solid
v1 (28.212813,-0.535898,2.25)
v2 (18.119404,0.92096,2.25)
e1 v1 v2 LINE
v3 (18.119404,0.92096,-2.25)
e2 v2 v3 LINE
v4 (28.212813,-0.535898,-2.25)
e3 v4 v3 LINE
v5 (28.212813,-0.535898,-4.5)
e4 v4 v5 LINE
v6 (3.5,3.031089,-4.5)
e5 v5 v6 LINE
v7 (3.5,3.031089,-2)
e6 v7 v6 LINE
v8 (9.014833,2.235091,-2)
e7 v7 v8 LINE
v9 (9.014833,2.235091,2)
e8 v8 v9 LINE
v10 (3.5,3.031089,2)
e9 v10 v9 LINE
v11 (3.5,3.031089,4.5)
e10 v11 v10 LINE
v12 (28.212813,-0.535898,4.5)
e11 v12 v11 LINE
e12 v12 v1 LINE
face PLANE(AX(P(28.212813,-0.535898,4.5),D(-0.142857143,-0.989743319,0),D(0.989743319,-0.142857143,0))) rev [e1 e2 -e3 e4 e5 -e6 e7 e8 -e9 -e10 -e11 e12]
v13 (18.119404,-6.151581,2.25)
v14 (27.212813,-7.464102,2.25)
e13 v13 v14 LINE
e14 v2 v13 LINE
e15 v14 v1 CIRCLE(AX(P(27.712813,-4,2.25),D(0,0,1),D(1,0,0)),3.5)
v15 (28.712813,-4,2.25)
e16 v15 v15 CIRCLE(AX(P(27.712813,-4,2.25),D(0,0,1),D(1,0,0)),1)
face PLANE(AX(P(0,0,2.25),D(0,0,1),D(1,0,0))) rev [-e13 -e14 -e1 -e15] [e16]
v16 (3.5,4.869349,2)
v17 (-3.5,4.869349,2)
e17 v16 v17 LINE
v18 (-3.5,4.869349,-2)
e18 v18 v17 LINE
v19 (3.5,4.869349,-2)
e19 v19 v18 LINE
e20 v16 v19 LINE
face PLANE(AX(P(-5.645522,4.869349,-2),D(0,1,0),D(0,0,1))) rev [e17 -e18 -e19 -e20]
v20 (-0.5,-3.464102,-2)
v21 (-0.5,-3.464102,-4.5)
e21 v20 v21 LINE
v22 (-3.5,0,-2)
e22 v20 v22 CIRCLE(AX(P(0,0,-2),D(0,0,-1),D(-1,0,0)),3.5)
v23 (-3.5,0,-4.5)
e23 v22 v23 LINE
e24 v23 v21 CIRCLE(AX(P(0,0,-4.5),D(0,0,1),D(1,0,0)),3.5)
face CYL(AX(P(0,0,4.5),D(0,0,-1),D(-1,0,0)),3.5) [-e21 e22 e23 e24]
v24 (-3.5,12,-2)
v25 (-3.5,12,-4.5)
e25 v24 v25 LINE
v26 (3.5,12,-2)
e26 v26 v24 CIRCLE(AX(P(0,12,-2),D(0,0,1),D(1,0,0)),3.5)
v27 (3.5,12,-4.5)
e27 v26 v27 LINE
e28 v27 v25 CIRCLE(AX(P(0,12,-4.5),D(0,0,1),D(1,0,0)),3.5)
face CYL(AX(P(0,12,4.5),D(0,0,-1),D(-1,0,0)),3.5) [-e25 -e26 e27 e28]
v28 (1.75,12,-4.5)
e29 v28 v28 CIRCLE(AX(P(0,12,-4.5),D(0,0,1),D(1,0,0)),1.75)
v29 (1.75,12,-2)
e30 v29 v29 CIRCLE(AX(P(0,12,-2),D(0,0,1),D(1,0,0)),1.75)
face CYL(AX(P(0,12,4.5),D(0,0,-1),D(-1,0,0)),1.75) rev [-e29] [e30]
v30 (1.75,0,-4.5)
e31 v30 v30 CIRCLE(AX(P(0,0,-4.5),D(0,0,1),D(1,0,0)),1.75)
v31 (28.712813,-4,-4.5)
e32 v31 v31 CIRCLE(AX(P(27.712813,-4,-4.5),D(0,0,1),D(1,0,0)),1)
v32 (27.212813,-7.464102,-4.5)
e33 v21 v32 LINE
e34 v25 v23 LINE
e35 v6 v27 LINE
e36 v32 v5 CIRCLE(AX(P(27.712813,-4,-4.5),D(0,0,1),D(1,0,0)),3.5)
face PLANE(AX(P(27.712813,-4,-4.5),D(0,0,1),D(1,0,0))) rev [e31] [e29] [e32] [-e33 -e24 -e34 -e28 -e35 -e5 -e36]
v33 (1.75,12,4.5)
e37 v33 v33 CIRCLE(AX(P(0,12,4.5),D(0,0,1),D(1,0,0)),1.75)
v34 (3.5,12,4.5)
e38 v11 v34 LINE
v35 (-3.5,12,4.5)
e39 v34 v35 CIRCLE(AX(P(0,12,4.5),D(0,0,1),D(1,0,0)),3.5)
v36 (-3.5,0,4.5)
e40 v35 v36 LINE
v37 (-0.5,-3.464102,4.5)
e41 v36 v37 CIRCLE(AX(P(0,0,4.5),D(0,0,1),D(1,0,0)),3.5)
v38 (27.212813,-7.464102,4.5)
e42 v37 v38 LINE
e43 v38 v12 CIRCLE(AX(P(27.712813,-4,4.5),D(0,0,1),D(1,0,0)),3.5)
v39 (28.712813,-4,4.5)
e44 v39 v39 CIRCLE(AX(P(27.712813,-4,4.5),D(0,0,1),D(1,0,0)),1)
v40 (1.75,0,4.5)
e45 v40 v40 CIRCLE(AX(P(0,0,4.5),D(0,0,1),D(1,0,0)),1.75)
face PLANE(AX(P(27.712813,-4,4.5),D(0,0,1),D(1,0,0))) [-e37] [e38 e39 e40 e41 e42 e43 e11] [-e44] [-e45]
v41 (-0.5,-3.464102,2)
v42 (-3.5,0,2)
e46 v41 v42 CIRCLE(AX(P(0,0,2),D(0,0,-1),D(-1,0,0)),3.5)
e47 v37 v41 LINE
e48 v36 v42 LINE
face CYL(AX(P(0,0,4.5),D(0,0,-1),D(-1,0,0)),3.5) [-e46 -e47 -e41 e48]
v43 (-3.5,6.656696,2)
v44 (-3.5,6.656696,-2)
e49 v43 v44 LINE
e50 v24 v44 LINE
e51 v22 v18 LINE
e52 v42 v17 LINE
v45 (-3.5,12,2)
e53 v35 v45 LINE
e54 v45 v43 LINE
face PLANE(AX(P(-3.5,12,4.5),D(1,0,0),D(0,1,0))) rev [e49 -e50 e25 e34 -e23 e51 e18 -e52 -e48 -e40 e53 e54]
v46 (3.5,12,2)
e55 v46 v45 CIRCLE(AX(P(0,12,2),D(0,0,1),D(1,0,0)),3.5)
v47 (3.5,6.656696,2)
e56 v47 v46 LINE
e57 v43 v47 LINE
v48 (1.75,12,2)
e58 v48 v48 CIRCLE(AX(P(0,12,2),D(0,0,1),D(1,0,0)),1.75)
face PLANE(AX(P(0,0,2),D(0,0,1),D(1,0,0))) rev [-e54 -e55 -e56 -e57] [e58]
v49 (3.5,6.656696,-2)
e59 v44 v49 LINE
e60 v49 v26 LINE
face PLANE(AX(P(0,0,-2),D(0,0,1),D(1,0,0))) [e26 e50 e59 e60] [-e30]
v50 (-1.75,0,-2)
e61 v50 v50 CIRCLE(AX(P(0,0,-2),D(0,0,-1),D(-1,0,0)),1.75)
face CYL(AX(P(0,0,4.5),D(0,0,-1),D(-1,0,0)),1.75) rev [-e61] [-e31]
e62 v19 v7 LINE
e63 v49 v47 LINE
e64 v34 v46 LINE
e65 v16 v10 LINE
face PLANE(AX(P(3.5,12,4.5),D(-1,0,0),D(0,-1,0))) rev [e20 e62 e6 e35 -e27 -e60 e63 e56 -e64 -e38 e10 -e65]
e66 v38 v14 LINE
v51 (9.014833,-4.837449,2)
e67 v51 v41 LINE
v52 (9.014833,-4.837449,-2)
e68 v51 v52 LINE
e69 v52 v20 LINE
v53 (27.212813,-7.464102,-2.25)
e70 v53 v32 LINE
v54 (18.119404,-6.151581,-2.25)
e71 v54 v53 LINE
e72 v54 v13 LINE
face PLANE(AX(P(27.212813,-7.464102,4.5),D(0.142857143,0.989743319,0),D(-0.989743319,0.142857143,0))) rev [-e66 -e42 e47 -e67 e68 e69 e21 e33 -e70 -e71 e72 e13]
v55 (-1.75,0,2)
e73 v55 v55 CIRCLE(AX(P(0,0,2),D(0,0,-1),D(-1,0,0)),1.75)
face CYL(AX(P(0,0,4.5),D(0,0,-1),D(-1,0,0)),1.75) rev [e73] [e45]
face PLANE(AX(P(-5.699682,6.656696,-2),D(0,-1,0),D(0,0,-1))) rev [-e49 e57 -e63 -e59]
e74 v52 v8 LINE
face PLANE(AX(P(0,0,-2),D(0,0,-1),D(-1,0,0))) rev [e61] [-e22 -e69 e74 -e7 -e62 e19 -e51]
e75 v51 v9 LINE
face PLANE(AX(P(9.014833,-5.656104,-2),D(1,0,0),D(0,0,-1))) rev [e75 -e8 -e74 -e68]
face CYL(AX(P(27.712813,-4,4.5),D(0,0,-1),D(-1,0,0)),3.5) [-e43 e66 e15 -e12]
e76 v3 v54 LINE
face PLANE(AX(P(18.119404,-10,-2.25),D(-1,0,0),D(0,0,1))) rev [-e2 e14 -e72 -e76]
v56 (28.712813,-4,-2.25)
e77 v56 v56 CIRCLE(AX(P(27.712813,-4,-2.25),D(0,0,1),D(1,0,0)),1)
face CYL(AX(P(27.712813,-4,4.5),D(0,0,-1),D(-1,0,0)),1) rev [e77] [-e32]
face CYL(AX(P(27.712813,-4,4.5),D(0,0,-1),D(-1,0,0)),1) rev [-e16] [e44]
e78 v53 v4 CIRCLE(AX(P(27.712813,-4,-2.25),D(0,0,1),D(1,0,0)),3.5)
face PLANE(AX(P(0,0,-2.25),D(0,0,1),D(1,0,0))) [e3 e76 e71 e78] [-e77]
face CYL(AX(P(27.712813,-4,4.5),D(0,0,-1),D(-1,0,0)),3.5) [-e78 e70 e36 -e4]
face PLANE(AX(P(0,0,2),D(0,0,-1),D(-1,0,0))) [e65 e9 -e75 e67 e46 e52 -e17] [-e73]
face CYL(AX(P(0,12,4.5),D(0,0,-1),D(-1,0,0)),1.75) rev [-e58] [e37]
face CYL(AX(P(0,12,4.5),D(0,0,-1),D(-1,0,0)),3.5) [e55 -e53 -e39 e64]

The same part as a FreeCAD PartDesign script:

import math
import FreeCAD as App
import Part
import Sketcher
Q = App.Units.Quantity


def add_polygon(sketch, points):
    """Adds a closed chain of lines whose ends are joined by coincident constraints."""
    first, n = sketch.GeometryCount, len(points)
    for a, b in zip(points, points[1:] + points[:1]):
        sketch.addGeometry(Part.LineSegment(App.Vector(*a, 0), App.Vector(*b, 0)), False)
    for i in range(n):
        sketch.addConstraint(Sketcher.Constraint("Coincident", first + i, 2, first + (i + 1) % n, 1))

doc = App.newDocument("Part")
params = doc.addObject("Spreadsheet::Sheet", "Params")
for row, (alias, value) in enumerate([
    ("sketch1_diameter", "2 mm"),
    ("sketch1_diameter2", "3.5 mm"),
    ("sketch1_radius", "3.5 mm"),
    ("sketch1_height", "12 mm"),
    ("sketch1_length", "28 mm"),
    ("pad1_length", "9 mm"),
    ("pocket1_length", "4 mm"),
    ("sketch3_height", "12 mm"),
    ("pocket2_length", "4.5 mm"),
], start=1):
    params.set(f"A{row}", alias)
    params.set(f"B{row}", "=" + value)
    params.setAlias(f"B{row}", alias)

body = doc.addObject("PartDesign::Body", "Body")

sketch1 = body.newObject("Sketcher::SketchObject", "Sketch")
sketch1.AttachmentSupport = (doc.getObject("XY_Plane"), [""])
sketch1.MapMode = "FlatFace"
sketch1.addGeometry(Part.LineSegment(App.Vector(-0.5, -3.5, 0), App.Vector(27.2, -7.5, 0)), False)
sketch1.addGeometry(Part.ArcOfCircle(Part.Circle(App.Vector(27.7, -4, 0), App.Vector(0, 0, 1), 3.5), math.radians(-98), math.radians(82)), False)
sketch1.addGeometry(Part.LineSegment(App.Vector(28.2, -0.5, 0), App.Vector(3.5, 3, 0)), False)
sketch1.addGeometry(Part.LineSegment(App.Vector(3.5, 3, 0), App.Vector(3.5, 12, 0)), False)
sketch1.addGeometry(Part.ArcOfCircle(Part.Circle(App.Vector(0, 12, 0), App.Vector(0, 0, 1), 3.5), math.radians(0), math.radians(180)), False)
sketch1.addGeometry(Part.LineSegment(App.Vector(-3.5, 12, 0), App.Vector(-3.5, 0, 0)), False)
sketch1.addGeometry(Part.ArcOfCircle(Part.Circle(App.Vector(0, 0, 0), App.Vector(0, 0, 1), 3.5), math.radians(-180), math.radians(-98)), False)
sketch1.addGeometry(Part.Circle(App.Vector(27.7, -4, 0), App.Vector(0, 0, 1), 1), False)
sketch1.addGeometry(Part.Circle(App.Vector(0, 0, 0), App.Vector(0, 0, 1), 1.8), False)
sketch1.addGeometry(Part.Circle(App.Vector(0, 12, 0), App.Vector(0, 0, 1), 1.8), False)
sketch1.addConstraint(Sketcher.Constraint("Tangent", 0, 2, 1, 1))
sketch1.addConstraint(Sketcher.Constraint("Tangent", 1, 2, 2, 1))
sketch1.addConstraint(Sketcher.Constraint("Coincident", 2, 2, 3, 1))
sketch1.addConstraint(Sketcher.Constraint("Tangent", 3, 2, 4, 1))
sketch1.addConstraint(Sketcher.Constraint("Tangent", 4, 2, 5, 1))
sketch1.addConstraint(Sketcher.Constraint("Tangent", 5, 2, 6, 1))
sketch1.addConstraint(Sketcher.Constraint("Tangent", 6, 2, 0, 1))
sketch1.addConstraint(Sketcher.Constraint("Vertical", 3))
sketch1.addConstraint(Sketcher.Constraint("Vertical", 5))
sketch1.addConstraint(Sketcher.Constraint("Coincident", 6, 3, -1, 1))
sketch1.addConstraint(Sketcher.Constraint("Coincident", 8, 3, -1, 1))
sketch1.addConstraint(Sketcher.Constraint("Coincident", 7, 3, 1, 3))
sketch1.addConstraint(Sketcher.Constraint("Coincident", 9, 3, 4, 3))
sketch1.addConstraint(Sketcher.Constraint("Equal", 1, 4))
sketch1.addConstraint(Sketcher.Constraint("Equal", 4, 6))
sketch1.addConstraint(Sketcher.Constraint("Equal", 8, 9))
sketch1.addConstraint(Sketcher.Constraint("Parallel", 0, 2))
sketch1.addConstraint(Sketcher.Constraint("Diameter", 7, Q("2 mm")))
sketch1.addConstraint(Sketcher.Constraint("Diameter", 8, Q("3.5 mm")))
sketch1.addConstraint(Sketcher.Constraint("Radius", 1, Q("3.5 mm")))
sketch1.addConstraint(Sketcher.Constraint("DistanceY", 5, 2, 5, 1, Q("12 mm")))
sketch1.addConstraint(Sketcher.Constraint("Distance", 0, Q("28 mm")))
sketch1.addConstraint(Sketcher.Constraint("DistanceY", 1, 3, -1, 1, Q("4 mm")))
sketch1.setExpression("Constraints[17]", "Params.sketch1_diameter")
sketch1.setExpression("Constraints[18]", "Params.sketch1_diameter2")
sketch1.setExpression("Constraints[19]", "Params.sketch1_radius")
sketch1.setExpression("Constraints[20]", "Params.sketch1_height")
sketch1.setExpression("Constraints[21]", "Params.sketch1_length")
pad1 = body.newObject("PartDesign::Pad", "Pad")
pad1.Profile = sketch1
pad1.setExpression("Length", "Params.pad1_length")
pad1.Midplane = True

sketch2 = body.newObject("Sketcher::SketchObject", "Sketch001")
sketch2.AttachmentSupport = (doc.getObject("XY_Plane"), [""])
sketch2.MapMode = "FlatFace"
add_polygon(sketch2, [(-6, 16), (-6, 7), (4, 7), (4, 16)])
add_polygon(sketch2, [(-6, 5), (-6, -6), (9, -6), (9, 5)])
sketch2.addConstraint(Sketcher.Constraint("Vertical", 0))
sketch2.addConstraint(Sketcher.Constraint("Horizontal", 1))
sketch2.addConstraint(Sketcher.Constraint("Vertical", 2))
sketch2.addConstraint(Sketcher.Constraint("Horizontal", 3))
sketch2.addConstraint(Sketcher.Constraint("Vertical", 4))
sketch2.addConstraint(Sketcher.Constraint("Horizontal", 5))
sketch2.addConstraint(Sketcher.Constraint("Vertical", 6))
sketch2.addConstraint(Sketcher.Constraint("Horizontal", 7))
sketch2.addConstraint(Sketcher.Constraint("DistanceX", -1, 1, 1, 2, Q("3.5 mm")))
sketch2.addConstraint(Sketcher.Constraint("DistanceY", 4, 2, 0, 2, Q("12.3128 mm")))
sketch2.addConstraint(Sketcher.Constraint("DistanceX", 1, 1, 1, 2, Q("9.199682 mm")))
sketch2.addConstraint(Sketcher.Constraint("DistanceX", 5, 1, 5, 2, Q("14.660355 mm")))
sketch2.addConstraint(Sketcher.Constraint("DistanceY", 0, 2, 0, 1, Q("9.813168 mm")))
sketch2.addConstraint(Sketcher.Constraint("DistanceY", 4, 2, 4, 1, Q("10.525454 mm")))
sketch2.addConstraint(Sketcher.Constraint("DistanceX", 4, 2, -1, 1, Q("5.645522 mm")))
sketch2.addConstraint(Sketcher.Constraint("DistanceY", -1, 1, 6, 2, Q("4.869349 mm")))
pocket1 = body.newObject("PartDesign::Pocket", "Pocket")
pocket1.Profile = sketch2
pocket1.setExpression("Length", "Params.pocket1_length")
pocket1.Midplane = True

sketch3 = body.newObject("Sketcher::SketchObject", "Sketch002")
sketch3.AttachmentSupport = (doc.getObject("XY_Plane"), [""])
sketch3.MapMode = "FlatFace"
add_polygon(sketch3, [(18, 2), (18, -10), (37, -10), (37, 2)])
sketch3.addConstraint(Sketcher.Constraint("Vertical", 0))
sketch3.addConstraint(Sketcher.Constraint("Horizontal", 1))
sketch3.addConstraint(Sketcher.Constraint("Vertical", 2))
sketch3.addConstraint(Sketcher.Constraint("Horizontal", 3))
sketch3.addConstraint(Sketcher.Constraint("DistanceY", 0, 2, 0, 1, Q("12 mm")))
sketch3.addConstraint(Sketcher.Constraint("DistanceY", 0, 2, -1, 1, Q("10 mm")))
sketch3.addConstraint(Sketcher.Constraint("DistanceX", 1, 1, 1, 2, Q("19.186819 mm")))
sketch3.addConstraint(Sketcher.Constraint("DistanceX", -1, 1, 0, 2, Q("18.119404 mm")))
sketch3.setExpression("Constraints[8]", "Params.sketch3_height")
pocket2 = body.newObject("PartDesign::Pocket", "Pocket001")
pocket2.Profile = sketch3
pocket2.setExpression("Length", "Params.pocket2_length")
pocket2.Midplane = True

doc.recompute()
